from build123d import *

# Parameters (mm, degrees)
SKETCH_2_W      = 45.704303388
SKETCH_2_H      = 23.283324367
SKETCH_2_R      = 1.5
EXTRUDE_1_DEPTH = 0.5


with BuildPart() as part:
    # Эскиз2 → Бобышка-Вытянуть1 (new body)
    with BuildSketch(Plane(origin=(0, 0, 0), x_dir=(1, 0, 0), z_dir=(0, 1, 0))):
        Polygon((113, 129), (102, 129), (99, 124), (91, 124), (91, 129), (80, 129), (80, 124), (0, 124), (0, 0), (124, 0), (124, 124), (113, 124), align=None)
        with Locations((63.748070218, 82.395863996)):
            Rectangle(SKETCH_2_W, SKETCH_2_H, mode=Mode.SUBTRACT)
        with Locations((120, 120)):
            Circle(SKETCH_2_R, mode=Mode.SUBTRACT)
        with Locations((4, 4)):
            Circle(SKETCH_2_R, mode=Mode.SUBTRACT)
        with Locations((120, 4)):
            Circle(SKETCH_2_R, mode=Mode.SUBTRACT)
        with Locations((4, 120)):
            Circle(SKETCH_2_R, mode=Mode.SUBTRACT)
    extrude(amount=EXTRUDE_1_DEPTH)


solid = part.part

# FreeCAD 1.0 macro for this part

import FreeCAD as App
import Part
import Sketcher

V = App.Vector


def add_polygon(sketch, points):
    """Adds a closed chain of lines whose ends are joined by coincident constraints."""
    first, n = sketch.GeometryCount, len(points)
    for a, b in zip(points, points[1:] + points[:1]):
        sketch.addGeometry(Part.LineSegment(App.Vector(*a, 0), App.Vector(*b, 0)), False)
    for i in range(n):
        sketch.addConstraint(Sketcher.Constraint("Coincident", first + i, 2, first + (i + 1) % n, 1))

doc = App.newDocument("Part")
body = doc.addObject("PartDesign::Body", "Body")

# Sketch on XZ plane
sketch1 = doc.addObject("Sketcher::SketchObject", "Sketch")
body.addObject(sketch1)
sketch1.AttachmentSupport = (doc.XZ_Plane, [""])
sketch1.MapMode = "FlatFace"
add_polygon(sketch1, [(113, -129), (102, -129), (99, -124), (91, -124), (91, -129), (80, -129), (80, -124), (0, -124), (0, 0), (124, 0), (124, -124), (113, -124)])  # lines 0-11
sketch1.addGeometry(Part.Circle(V(4, -4, 0), V(0, 0, 1), 1.5), False)  # 12
sketch1.addGeometry(Part.Circle(V(120, -4, 0), V(0, 0, 1), 1.5), False)  # 13
sketch1.addGeometry(Part.Circle(V(4, -120, 0), V(0, 0, 1), 1.5), False)  # 14
add_polygon(sketch1, [(86.6, -70.8), (40.9, -70.8), (40.9, -94), (86.6, -94)])  # lines 15-18
sketch1.addGeometry(Part.Circle(V(120, -120, 0), V(0, 0, 1), 1.5), False)  # 19
sketch1.addConstraint([
    Sketcher.Constraint("Horizontal", 0),
    Sketcher.Constraint("Horizontal", 2),
    Sketcher.Constraint("Vertical", 3),
    Sketcher.Constraint("Horizontal", 4),
    Sketcher.Constraint("Vertical", 5),
    Sketcher.Constraint("Horizontal", 6),
    Sketcher.Constraint("Vertical", 7),
    Sketcher.Constraint("Horizontal", 8),
    Sketcher.Constraint("Vertical", 9),
    Sketcher.Constraint("Horizontal", 10),
    Sketcher.Constraint("Vertical", 11),
    Sketcher.Constraint("Horizontal", 15),
    Sketcher.Constraint("Vertical", 16),
    Sketcher.Constraint("Horizontal", 17),
    Sketcher.Constraint("Vertical", 18),
    Sketcher.Constraint("Coincident", 7, 2, -1, 1),
    Sketcher.Constraint("Equal", 12, 13),
    Sketcher.Constraint("Equal", 13, 14),
    Sketcher.Constraint("Equal", 14, 19),
    Sketcher.Constraint("Horizontal", 12, 3, 13, 3),
    Sketcher.Constraint("Horizontal", 14, 3, 19, 3),
    Sketcher.Constraint("Horizontal", 0, 2, 3, 2),
    Sketcher.Constraint("Horizontal", 2, 2, 5, 2),
    Sketcher.Constraint("Horizontal", 6, 2, 9, 2),
    Sketcher.Constraint("Vertical", 12, 3, 14, 3),
    Sketcher.Constraint("Vertical", 13, 3, 19, 3),
    Sketcher.Constraint("Equal", 0, 4),
    Sketcher.Constraint("Equal", 4, 10),
    Sketcher.Constraint("Equal", 8, 7),
    Sketcher.Constraint("Diameter", 12, 3.0),
    Sketcher.Constraint("DistanceX", 0, 2, 0, 1, 11.0),
    Sketcher.Constraint("DistanceX", 2, 2, 2, 1, 8.0),
    Sketcher.Constraint("DistanceX", 6, 2, 6, 1, 80.0),
    Sketcher.Constraint("DistanceX", 8, 1, 8, 2, 124.0),
    Sketcher.Constraint("DistanceY", 3, 2, 3, 1, 5.0),
    Sketcher.Constraint("DistanceX", -1, 1, 12, 3, 4.0),
    Sketcher.Constraint("DistanceY", 12, 3, -1, 1, 4.0),
    Sketcher.Constraint("DistanceX", -1, 1, 13, 3, 120.0),
    Sketcher.Constraint("DistanceY", 14, 3, -1, 1, 120.0),
    Sketcher.Constraint("DistanceY", 15, 2, -1, 1, 70.754202),
    Sketcher.Constraint("DistanceX", 15, 2, 15, 1, 45.704303),
    Sketcher.Constraint("DistanceY", 16, 2, 16, 1, 23.283324),
    Sketcher.Constraint("DistanceX", -1, 1, 15, 2, 40.895919),
])
pad1 = doc.addObject("PartDesign::Pad", "Pad")
body.addObject(pad1)
pad1.Profile = sketch1
pad1.Length = 0.5
pad1.Reversed = True

doc.recompute()
